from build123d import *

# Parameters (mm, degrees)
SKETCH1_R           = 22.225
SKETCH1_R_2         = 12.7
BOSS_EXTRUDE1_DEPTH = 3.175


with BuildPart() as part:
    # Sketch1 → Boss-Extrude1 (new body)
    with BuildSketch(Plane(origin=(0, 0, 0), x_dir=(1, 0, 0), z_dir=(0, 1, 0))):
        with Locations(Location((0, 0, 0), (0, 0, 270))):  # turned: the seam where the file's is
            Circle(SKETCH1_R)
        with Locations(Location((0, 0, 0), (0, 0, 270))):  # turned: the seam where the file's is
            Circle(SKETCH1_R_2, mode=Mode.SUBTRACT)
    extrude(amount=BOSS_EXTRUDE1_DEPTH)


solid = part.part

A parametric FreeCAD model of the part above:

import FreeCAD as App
import Part
import Sketcher

V = App.Vector
Q = App.Units.Quantity

doc = App.newDocument("Part")
params = doc.addObject("Spreadsheet::Sheet", "Params")
for row, (alias, value) in enumerate([
    ("sketch1_diameter", "1 in"),
    ("sketch1_diameter2", "1.75 in"),
    ("pad1_length", "0.125 in"),
], start=1):
    params.set(f"A{row}", alias)
    params.set(f"B{row}", "=" + value)
    params.setAlias(f"B{row}", alias)

body = doc.addObject("PartDesign::Body", "Body")

sketch1 = doc.addObject("Sketcher::SketchObject", "Sketch")
body.addObject(sketch1)
sketch1.AttachmentSupport = (doc.XZ_Plane, [""])
sketch1.MapMode = "FlatFace"
sketch1.addGeometry(Part.Circle(V(0, 0, 0), V(0, 0, 1), 22), False)
sketch1.addGeometry(Part.Circle(V(0, 0, 0), V(0, 0, 1), 13), False)
sketch1.addConstraint(Sketcher.Constraint("Coincident", 0, 3, -1, 1))
sketch1.addConstraint(Sketcher.Constraint("Coincident", 1, 3, -1, 1))
sketch1.addConstraint(Sketcher.Constraint("Diameter", 1, Q("1 in")))
sketch1.addConstraint(Sketcher.Constraint("Diameter", 0, Q("1.75 in")))
sketch1.setExpression("Constraints[2]", "Params.sketch1_diameter")
sketch1.setExpression("Constraints[3]", "Params.sketch1_diameter2")
pad1 = doc.addObject("PartDesign::Pad", "Pad")
body.addObject(pad1)
pad1.Profile = sketch1
pad1.setExpression("Length", "Params.pad1_length")
pad1.Reversed = True

doc.recompute()
